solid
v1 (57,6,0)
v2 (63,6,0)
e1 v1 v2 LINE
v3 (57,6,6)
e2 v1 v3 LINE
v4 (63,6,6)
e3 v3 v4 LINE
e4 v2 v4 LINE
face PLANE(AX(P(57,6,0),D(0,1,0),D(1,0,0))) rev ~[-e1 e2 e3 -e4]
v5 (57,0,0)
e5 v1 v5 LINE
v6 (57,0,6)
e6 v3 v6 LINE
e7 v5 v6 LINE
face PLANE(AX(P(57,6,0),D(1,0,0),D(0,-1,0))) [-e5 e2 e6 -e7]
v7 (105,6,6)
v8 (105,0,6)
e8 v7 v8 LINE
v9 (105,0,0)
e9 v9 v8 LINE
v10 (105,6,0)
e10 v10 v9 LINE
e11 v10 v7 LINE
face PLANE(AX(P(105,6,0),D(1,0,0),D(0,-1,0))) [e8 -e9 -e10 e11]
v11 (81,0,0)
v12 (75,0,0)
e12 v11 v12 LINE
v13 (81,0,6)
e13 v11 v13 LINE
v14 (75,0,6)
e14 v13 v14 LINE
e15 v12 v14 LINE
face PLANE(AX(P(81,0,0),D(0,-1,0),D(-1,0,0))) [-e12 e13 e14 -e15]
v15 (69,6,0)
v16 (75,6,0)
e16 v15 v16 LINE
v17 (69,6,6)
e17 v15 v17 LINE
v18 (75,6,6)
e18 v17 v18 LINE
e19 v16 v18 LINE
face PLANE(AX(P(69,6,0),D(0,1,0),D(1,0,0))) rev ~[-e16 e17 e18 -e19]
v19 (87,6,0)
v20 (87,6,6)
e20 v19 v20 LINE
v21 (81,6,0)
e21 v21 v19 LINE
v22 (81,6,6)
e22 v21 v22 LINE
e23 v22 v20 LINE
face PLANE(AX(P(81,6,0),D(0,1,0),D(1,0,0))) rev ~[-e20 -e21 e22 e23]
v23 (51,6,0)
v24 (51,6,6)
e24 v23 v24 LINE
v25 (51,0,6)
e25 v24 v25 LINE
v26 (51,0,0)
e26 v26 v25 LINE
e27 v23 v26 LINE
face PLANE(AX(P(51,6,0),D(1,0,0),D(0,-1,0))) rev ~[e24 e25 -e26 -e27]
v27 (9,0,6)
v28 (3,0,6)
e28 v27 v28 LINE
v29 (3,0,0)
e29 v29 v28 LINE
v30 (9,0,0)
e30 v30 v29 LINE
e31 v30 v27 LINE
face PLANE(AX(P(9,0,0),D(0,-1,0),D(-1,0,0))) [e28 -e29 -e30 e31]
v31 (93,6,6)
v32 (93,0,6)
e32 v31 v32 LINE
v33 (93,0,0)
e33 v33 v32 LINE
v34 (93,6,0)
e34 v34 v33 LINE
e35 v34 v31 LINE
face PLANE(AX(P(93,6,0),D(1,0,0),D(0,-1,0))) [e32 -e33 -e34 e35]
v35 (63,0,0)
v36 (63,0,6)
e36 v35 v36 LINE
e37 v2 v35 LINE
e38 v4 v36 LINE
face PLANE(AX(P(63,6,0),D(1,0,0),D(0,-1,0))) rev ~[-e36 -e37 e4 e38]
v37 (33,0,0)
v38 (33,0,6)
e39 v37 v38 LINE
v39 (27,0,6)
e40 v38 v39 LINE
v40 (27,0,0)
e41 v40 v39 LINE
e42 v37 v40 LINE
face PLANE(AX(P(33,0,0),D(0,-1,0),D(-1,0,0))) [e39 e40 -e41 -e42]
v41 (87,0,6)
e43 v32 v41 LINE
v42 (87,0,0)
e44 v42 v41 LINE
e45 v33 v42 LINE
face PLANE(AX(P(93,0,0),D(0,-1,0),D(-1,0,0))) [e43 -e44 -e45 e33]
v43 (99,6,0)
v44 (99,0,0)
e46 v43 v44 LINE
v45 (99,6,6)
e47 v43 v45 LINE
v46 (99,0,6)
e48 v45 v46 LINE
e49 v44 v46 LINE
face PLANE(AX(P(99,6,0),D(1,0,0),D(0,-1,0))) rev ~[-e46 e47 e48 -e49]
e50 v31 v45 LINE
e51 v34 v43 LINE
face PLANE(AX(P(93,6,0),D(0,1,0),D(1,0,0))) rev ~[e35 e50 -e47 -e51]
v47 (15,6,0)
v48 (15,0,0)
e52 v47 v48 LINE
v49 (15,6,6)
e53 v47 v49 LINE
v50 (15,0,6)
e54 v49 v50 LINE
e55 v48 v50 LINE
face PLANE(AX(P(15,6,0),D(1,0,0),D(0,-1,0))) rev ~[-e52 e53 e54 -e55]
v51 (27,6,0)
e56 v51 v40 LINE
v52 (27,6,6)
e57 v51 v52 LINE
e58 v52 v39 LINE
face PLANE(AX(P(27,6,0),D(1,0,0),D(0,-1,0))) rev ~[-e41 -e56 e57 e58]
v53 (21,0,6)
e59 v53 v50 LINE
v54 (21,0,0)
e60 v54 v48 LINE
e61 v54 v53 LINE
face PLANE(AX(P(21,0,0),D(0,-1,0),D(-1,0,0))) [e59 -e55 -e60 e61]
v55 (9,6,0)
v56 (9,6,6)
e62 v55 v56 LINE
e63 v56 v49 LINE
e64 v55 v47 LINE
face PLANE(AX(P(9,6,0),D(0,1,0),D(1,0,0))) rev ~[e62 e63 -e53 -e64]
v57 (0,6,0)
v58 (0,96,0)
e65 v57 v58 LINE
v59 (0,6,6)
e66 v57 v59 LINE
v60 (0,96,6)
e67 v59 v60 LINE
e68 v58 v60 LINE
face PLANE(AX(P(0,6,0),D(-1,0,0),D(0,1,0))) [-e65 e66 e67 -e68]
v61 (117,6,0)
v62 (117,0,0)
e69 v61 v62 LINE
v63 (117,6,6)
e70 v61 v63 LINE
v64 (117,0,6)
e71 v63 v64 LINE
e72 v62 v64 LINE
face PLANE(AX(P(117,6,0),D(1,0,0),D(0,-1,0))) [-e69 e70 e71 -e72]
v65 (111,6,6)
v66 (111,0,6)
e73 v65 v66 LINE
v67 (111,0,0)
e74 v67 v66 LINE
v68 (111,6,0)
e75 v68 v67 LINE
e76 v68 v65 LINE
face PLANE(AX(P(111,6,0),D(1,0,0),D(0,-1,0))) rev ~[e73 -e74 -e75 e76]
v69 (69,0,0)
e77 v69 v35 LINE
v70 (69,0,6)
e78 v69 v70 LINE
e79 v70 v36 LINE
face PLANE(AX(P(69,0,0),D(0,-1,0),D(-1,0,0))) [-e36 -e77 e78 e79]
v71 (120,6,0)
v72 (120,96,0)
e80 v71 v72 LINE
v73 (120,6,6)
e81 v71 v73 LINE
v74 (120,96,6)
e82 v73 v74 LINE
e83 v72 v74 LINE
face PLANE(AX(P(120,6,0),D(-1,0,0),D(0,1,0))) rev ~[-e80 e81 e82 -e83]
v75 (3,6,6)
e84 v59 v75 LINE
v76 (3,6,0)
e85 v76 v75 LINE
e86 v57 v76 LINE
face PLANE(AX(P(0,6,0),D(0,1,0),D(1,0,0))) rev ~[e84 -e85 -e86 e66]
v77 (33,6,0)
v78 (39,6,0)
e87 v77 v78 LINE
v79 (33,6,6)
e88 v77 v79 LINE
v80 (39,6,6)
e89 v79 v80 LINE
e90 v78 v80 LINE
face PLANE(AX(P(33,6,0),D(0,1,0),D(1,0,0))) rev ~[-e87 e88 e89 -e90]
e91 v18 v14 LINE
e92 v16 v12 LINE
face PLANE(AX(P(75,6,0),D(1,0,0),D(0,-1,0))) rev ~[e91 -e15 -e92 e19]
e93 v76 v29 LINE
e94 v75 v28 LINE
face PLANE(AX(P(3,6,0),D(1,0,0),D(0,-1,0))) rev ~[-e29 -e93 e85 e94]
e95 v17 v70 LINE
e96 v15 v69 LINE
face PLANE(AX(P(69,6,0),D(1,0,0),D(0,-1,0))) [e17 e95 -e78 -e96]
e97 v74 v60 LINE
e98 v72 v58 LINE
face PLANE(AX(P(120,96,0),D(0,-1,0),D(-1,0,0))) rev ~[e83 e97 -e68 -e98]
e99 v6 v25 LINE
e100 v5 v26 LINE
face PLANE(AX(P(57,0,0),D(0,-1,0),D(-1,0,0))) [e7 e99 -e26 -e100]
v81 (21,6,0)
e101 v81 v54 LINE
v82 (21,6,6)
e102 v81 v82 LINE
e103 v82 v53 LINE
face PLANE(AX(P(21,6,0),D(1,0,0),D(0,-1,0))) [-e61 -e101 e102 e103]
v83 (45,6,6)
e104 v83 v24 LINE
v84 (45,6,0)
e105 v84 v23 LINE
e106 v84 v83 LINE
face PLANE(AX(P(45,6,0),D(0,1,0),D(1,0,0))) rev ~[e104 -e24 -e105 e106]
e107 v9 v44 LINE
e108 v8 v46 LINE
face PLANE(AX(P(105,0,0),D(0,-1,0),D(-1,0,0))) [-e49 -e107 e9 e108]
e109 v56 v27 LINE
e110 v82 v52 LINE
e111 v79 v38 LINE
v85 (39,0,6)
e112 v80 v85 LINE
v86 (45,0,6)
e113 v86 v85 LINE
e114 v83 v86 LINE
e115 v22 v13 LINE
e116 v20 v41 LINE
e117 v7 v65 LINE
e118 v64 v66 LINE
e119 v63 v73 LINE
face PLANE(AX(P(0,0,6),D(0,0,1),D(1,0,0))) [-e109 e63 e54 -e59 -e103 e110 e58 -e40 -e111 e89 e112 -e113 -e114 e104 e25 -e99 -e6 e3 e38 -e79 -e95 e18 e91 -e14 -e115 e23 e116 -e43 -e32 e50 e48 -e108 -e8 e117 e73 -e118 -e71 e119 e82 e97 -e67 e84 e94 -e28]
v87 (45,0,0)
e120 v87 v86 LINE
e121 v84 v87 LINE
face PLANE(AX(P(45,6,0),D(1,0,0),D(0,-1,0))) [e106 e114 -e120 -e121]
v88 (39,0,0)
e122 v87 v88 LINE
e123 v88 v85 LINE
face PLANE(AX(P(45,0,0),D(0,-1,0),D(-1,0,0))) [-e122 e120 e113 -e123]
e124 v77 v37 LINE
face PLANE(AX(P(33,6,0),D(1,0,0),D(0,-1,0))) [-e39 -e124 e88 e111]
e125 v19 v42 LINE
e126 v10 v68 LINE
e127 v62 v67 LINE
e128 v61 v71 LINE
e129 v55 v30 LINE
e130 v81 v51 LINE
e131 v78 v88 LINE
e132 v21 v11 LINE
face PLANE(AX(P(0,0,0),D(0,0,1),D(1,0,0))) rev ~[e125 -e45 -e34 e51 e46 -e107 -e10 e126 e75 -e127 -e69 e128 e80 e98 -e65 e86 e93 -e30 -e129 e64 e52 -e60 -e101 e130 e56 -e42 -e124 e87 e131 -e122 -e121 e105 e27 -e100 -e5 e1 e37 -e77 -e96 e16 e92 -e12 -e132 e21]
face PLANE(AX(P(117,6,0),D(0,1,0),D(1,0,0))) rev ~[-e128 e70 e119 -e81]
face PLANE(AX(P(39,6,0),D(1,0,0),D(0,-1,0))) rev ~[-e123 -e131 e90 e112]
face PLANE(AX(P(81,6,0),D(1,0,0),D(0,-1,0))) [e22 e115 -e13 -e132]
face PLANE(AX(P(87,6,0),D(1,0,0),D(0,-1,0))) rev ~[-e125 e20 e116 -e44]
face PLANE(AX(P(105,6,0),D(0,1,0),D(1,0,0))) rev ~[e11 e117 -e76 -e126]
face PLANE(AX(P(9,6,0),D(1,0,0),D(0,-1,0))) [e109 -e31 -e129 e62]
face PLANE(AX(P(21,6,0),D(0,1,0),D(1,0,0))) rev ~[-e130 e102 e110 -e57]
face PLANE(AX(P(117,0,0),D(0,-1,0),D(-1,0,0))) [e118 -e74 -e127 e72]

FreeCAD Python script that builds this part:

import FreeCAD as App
import Part
import Sketcher
Q = App.Units.Quantity


def add_polygon(sketch, points):
    """Adds a closed chain of lines whose ends are joined by coincident constraints."""
    first, n = sketch.GeometryCount, len(points)
    for a, b in zip(points, points[1:] + points[:1]):
        sketch.addGeometry(Part.LineSegment(App.Vector(*a, 0), App.Vector(*b, 0)), False)
    for i in range(n):
        sketch.addConstraint(Sketcher.Constraint("Coincident", first + i, 2, first + (i + 1) % n, 1))

doc = App.newDocument("Part")
params = doc.addObject("Spreadsheet::Sheet", "Params")
for row, (alias, value) in enumerate([
    ("sketch1_width", "3 mm"),
    ("sketch1_width2", "6 mm"),
    ("sketch1_height", "90 mm"),
    ("pad1_length", "6 mm"),
], start=1):
    params.set(f"A{row}", alias)
    params.set(f"B{row}", "=" + value)
    params.setAlias(f"B{row}", alias)

body = doc.addObject("PartDesign::Body", "Body")

# Sketch on XY plane
sketch1 = body.newObject("Sketcher::SketchObject", "Sketch")
sketch1.AttachmentSupport = (doc.getObject("XY_Plane"), [""])
sketch1.MapMode = "FlatFace"
add_polygon(sketch1, [(0, 96), (0, 6), (3, 6), (3, 0), (9, 0), (9, 6), (15, 6), (15, 0), (21, 0), (21, 6), (27, 6), (27, 0), (33, 0), (33, 6), (39, 6), (39, 0), (45, 0), (45, 6), (51, 6), (51, 0), (57, 0), (57, 6), (63, 6), (63, 0), (69, 0), (69, 6), (75, 6), (75, 0), (81, 0), (81, 6), (87, 6), (87, 0), (93, 0), (93, 6), (99, 6), (99, 0), (105, 0), (105, 6), (111, 6), (111, 0), (117, 0), (117, 6), (120, 6), (120, 96)])  # lines 0-43
sketch1.addConstraint([
    Sketcher.Constraint("Vertical", 0),
    Sketcher.Constraint("Horizontal", 1),
    Sketcher.Constraint("Vertical", 2),
    Sketcher.Constraint("Horizontal", 3),
    Sketcher.Constraint("Vertical", 4),
    Sketcher.Constraint("Horizontal", 5),
    Sketcher.Constraint("Vertical", 6),
    Sketcher.Constraint("Horizontal", 7),
    Sketcher.Constraint("Vertical", 8),
    Sketcher.Constraint("Horizontal", 9),
    Sketcher.Constraint("Vertical", 10),
    Sketcher.Constraint("Horizontal", 11),
    Sketcher.Constraint("Vertical", 12),
    Sketcher.Constraint("Horizontal", 13),
    Sketcher.Constraint("Vertical", 14),
    Sketcher.Constraint("Horizontal", 15),
    Sketcher.Constraint("Vertical", 16),
    Sketcher.Constraint("Horizontal", 17),
    Sketcher.Constraint("Vertical", 18),
    Sketcher.Constraint("Horizontal", 19),
    Sketcher.Constraint("Vertical", 20),
    Sketcher.Constraint("Horizontal", 21),
    Sketcher.Constraint("Vertical", 22),
    Sketcher.Constraint("Horizontal", 23),
    Sketcher.Constraint("Vertical", 24),
    Sketcher.Constraint("Horizontal", 25),
    Sketcher.Constraint("Vertical", 26),
    Sketcher.Constraint("Horizontal", 27),
    Sketcher.Constraint("Vertical", 28),
    Sketcher.Constraint("Horizontal", 29),
    Sketcher.Constraint("Vertical", 30),
    Sketcher.Constraint("Horizontal", 31),
    Sketcher.Constraint("Vertical", 32),
    Sketcher.Constraint("Horizontal", 33),
    Sketcher.Constraint("Vertical", 34),
    Sketcher.Constraint("Horizontal", 35),
    Sketcher.Constraint("Vertical", 36),
    Sketcher.Constraint("Horizontal", 37),
    Sketcher.Constraint("Vertical", 38),
    Sketcher.Constraint("Horizontal", 39),
    Sketcher.Constraint("Vertical", 40),
    Sketcher.Constraint("Horizontal", 41),
    Sketcher.Constraint("Vertical", 42),
    Sketcher.Constraint("Horizontal", 43),
    Sketcher.Constraint("PointOnObject", 0, 2, -2),
    Sketcher.Constraint("PointOnObject", 2, 2, -1),
    Sketcher.Constraint("PointOnObject", 6, 2, -1),
    Sketcher.Constraint("PointOnObject", 10, 2, -1),
    Sketcher.Constraint("PointOnObject", 14, 2, -1),
    Sketcher.Constraint("PointOnObject", 18, 2, -1),
    Sketcher.Constraint("PointOnObject", 22, 2, -1),
    Sketcher.Constraint("PointOnObject", 26, 2, -1),
    Sketcher.Constraint("PointOnObject", 30, 2, -1),
    Sketcher.Constraint("PointOnObject", 34, 2, -1),
    Sketcher.Constraint("PointOnObject", 38, 2, -1),
    Sketcher.Constraint("Horizontal", 1, 2, 4, 2),
    Sketcher.Constraint("Horizontal", 5, 2, 8, 2),
    Sketcher.Constraint("Horizontal", 9, 2, 12, 2),
    Sketcher.Constraint("Horizontal", 13, 2, 16, 2),
    Sketcher.Constraint("Horizontal", 17, 2, 20, 2),
    Sketcher.Constraint("Horizontal", 21, 2, 24, 2),
    Sketcher.Constraint("Horizontal", 25, 2, 28, 2),
    Sketcher.Constraint("Horizontal", 29, 2, 32, 2),
    Sketcher.Constraint("Horizontal", 33, 2, 36, 2),
    Sketcher.Constraint("Horizontal", 37, 2, 40, 2),
    Sketcher.Constraint("Equal", 3, 5),
    Sketcher.Constraint("Equal", 5, 7),
    Sketcher.Constraint("Equal", 7, 9),
    Sketcher.Constraint("Equal", 9, 11),
    Sketcher.Constraint("Equal", 11, 13),
    Sketcher.Constraint("Equal", 13, 15),
    Sketcher.Constraint("Equal", 15, 17),
    Sketcher.Constraint("Equal", 17, 19),
    Sketcher.Constraint("Equal", 19, 21),
    Sketcher.Constraint("Equal", 21, 23),
    Sketcher.Constraint("Equal", 23, 25),
    Sketcher.Constraint("Equal", 25, 27),
    Sketcher.Constraint("Equal", 27, 29),
    Sketcher.Constraint("Equal", 29, 31),
    Sketcher.Constraint("Equal", 31, 33),
    Sketcher.Constraint("Equal", 33, 35),
    Sketcher.Constraint("Equal", 35, 37),
    Sketcher.Constraint("Equal", 37, 39),
    Sketcher.Constraint("Equal", 1, 41),
    Sketcher.Constraint("Equal", 39, 2),
    Sketcher.Constraint("DistanceX", 1, 1, 1, 2, Q("3 mm")),
    Sketcher.Constraint("DistanceX", 3, 1, 3, 2, Q("6 mm")),
    Sketcher.Constraint("DistanceY", 0, 2, 0, 1, Q("90 mm")),
])
sketch1.setExpression("Constraints[129]", "Params.sketch1_width")
sketch1.setExpression("Constraints[130]", "Params.sketch1_width2")
sketch1.setExpression("Constraints[131]", "Params.sketch1_height")
pad1 = body.newObject("PartDesign::Pad", "Pad")
pad1.Profile = sketch1
pad1.setExpression("Length", "Params.pad1_length")

doc.recompute()
